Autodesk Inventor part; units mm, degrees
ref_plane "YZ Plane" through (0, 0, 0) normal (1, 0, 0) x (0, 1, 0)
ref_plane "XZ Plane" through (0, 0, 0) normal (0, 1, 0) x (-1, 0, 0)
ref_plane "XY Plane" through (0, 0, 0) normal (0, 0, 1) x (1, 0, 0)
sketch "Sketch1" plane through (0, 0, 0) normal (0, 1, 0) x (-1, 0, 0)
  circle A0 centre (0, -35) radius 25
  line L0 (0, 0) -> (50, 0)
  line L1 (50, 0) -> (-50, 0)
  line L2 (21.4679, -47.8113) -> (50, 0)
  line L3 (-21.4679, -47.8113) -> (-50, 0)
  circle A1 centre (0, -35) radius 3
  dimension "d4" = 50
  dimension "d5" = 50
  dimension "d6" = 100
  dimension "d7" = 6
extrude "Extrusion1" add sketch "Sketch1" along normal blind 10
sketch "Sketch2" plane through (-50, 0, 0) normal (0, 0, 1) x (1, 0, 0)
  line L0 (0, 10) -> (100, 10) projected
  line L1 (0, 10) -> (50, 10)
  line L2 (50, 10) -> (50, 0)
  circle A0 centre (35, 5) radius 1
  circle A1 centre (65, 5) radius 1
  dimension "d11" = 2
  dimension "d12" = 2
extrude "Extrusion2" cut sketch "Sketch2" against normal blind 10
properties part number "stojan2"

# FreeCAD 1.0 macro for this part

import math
import FreeCAD as App
import Part
import Sketcher
from FreeCAD import Vector

doc = App.newDocument("Part")
params = doc.addObject("Spreadsheet::Sheet", "Params")
for row, (alias, value) in enumerate([
    ("sketch1_diameter", "6 mm"),
    ("sketch1_radius", "25 mm"),
    ("sketch1_width", "100 mm"),
    ("pad1_length", "10 mm"),
    ("sketch2_diameter", "2 mm"),
    ("pocket1_length", "10 mm"),
], start=1):
    params.set(f"A{row}", alias)
    params.set(f"B{row}", "=" + value)
    params.setAlias(f"B{row}", alias)

body = doc.addObject("PartDesign::Body", "Body")

# Sketch on XZ plane
sketch1 = body.newObject("Sketcher::SketchObject", "Sketch")
sketch1.AttachmentSupport = (doc.getObject("XZ_Plane"), [""])
sketch1.MapMode = "FlatFace"
sketch1.addGeometry(Part.ArcOfCircle(Part.Circle(Vector(0, -35, 0), Vector(0, 0, 1), 25), math.radians(-149), math.radians(-31)), False)
sketch1.addGeometry(Part.LineSegment(Vector(-21.5, -47.8, 0), Vector(-50, 0, 0)), False)
sketch1.addGeometry(Part.LineSegment(Vector(-50, 0, 0), Vector(50, 0, 0)), False)
sketch1.addGeometry(Part.LineSegment(Vector(50, 0, 0), Vector(21.5, -47.8, 0)), False)
sketch1.addGeometry(Part.Circle(Vector(0, -35, 0), Vector(0, 0, 1), 3), False)
sketch1.addConstraint(Sketcher.Constraint("Tangent", 0, 1, 1, 1))
sketch1.addConstraint(Sketcher.Constraint("Coincident", 1, 2, 2, 1))
sketch1.addConstraint(Sketcher.Constraint("Coincident", 2, 2, 3, 1))
sketch1.addConstraint(Sketcher.Constraint("Tangent", 3, 2, 0, 2))
sketch1.addConstraint(Sketcher.Constraint("Horizontal", 2))
sketch1.addConstraint(Sketcher.Constraint("Coincident", 4, 3, 0, 3))
sketch1.addConstraint(Sketcher.Constraint("Symmetric", 1, 2, 2, 2, -1, 1))
sketch1.addConstraint(Sketcher.Constraint("PointOnObject", 0, 3, -2))
sketch1.addConstraint(Sketcher.Constraint("Diameter", 4, 6.0))
sketch1.addConstraint(Sketcher.Constraint("Radius", 0, 25.0))
sketch1.addConstraint(Sketcher.Constraint("DistanceX", 2, 1, 2, 2, 100.0))
sketch1.addConstraint(Sketcher.Constraint("DistanceY", 0, 3, -1, 1, 35.0))
sketch1.setExpression("Constraints[8]", "Params.sketch1_diameter")
sketch1.setExpression("Constraints[9]", "Params.sketch1_radius")
sketch1.setExpression("Constraints[10]", "Params.sketch1_width")
pad1 = body.newObject("PartDesign::Pad", "Pad")
pad1.Profile = sketch1
pad1.setExpression("Length", "Params.pad1_length")
pad1.Reversed = True

# Sketch on XY plane
sketch2 = body.newObject("Sketcher::SketchObject", "Sketch001")
sketch2.AttachmentSupport = (doc.getObject("XY_Plane"), [""])
sketch2.MapMode = "FlatFace"
sketch2.addGeometry(Part.Circle(Vector(-15, 5, 0), Vector(0, 0, 1), 1), False)
sketch2.addGeometry(Part.Circle(Vector(15, 5, 0), Vector(0, 0, 1), 1), False)
sketch2.addConstraint(Sketcher.Constraint("Equal", 0, 1))
sketch2.addConstraint(Sketcher.Constraint("Symmetric", 0, 3, 1, 3, -2))
sketch2.addConstraint(Sketcher.Constraint("Diameter", 0, 2.0))
sketch2.addConstraint(Sketcher.Constraint("DistanceX", 0, 3, -1, 1, 15.0))
sketch2.addConstraint(Sketcher.Constraint("DistanceY", -1, 1, 0, 3, 5.0))
sketch2.setExpression("Constraints[2]", "Params.sketch2_diameter")
pocket1 = body.newObject("PartDesign::Pocket", "Pocket")
pocket1.Profile = sketch2
pocket1.setExpression("Length", "Params.pocket1_length")

doc.recompute()
